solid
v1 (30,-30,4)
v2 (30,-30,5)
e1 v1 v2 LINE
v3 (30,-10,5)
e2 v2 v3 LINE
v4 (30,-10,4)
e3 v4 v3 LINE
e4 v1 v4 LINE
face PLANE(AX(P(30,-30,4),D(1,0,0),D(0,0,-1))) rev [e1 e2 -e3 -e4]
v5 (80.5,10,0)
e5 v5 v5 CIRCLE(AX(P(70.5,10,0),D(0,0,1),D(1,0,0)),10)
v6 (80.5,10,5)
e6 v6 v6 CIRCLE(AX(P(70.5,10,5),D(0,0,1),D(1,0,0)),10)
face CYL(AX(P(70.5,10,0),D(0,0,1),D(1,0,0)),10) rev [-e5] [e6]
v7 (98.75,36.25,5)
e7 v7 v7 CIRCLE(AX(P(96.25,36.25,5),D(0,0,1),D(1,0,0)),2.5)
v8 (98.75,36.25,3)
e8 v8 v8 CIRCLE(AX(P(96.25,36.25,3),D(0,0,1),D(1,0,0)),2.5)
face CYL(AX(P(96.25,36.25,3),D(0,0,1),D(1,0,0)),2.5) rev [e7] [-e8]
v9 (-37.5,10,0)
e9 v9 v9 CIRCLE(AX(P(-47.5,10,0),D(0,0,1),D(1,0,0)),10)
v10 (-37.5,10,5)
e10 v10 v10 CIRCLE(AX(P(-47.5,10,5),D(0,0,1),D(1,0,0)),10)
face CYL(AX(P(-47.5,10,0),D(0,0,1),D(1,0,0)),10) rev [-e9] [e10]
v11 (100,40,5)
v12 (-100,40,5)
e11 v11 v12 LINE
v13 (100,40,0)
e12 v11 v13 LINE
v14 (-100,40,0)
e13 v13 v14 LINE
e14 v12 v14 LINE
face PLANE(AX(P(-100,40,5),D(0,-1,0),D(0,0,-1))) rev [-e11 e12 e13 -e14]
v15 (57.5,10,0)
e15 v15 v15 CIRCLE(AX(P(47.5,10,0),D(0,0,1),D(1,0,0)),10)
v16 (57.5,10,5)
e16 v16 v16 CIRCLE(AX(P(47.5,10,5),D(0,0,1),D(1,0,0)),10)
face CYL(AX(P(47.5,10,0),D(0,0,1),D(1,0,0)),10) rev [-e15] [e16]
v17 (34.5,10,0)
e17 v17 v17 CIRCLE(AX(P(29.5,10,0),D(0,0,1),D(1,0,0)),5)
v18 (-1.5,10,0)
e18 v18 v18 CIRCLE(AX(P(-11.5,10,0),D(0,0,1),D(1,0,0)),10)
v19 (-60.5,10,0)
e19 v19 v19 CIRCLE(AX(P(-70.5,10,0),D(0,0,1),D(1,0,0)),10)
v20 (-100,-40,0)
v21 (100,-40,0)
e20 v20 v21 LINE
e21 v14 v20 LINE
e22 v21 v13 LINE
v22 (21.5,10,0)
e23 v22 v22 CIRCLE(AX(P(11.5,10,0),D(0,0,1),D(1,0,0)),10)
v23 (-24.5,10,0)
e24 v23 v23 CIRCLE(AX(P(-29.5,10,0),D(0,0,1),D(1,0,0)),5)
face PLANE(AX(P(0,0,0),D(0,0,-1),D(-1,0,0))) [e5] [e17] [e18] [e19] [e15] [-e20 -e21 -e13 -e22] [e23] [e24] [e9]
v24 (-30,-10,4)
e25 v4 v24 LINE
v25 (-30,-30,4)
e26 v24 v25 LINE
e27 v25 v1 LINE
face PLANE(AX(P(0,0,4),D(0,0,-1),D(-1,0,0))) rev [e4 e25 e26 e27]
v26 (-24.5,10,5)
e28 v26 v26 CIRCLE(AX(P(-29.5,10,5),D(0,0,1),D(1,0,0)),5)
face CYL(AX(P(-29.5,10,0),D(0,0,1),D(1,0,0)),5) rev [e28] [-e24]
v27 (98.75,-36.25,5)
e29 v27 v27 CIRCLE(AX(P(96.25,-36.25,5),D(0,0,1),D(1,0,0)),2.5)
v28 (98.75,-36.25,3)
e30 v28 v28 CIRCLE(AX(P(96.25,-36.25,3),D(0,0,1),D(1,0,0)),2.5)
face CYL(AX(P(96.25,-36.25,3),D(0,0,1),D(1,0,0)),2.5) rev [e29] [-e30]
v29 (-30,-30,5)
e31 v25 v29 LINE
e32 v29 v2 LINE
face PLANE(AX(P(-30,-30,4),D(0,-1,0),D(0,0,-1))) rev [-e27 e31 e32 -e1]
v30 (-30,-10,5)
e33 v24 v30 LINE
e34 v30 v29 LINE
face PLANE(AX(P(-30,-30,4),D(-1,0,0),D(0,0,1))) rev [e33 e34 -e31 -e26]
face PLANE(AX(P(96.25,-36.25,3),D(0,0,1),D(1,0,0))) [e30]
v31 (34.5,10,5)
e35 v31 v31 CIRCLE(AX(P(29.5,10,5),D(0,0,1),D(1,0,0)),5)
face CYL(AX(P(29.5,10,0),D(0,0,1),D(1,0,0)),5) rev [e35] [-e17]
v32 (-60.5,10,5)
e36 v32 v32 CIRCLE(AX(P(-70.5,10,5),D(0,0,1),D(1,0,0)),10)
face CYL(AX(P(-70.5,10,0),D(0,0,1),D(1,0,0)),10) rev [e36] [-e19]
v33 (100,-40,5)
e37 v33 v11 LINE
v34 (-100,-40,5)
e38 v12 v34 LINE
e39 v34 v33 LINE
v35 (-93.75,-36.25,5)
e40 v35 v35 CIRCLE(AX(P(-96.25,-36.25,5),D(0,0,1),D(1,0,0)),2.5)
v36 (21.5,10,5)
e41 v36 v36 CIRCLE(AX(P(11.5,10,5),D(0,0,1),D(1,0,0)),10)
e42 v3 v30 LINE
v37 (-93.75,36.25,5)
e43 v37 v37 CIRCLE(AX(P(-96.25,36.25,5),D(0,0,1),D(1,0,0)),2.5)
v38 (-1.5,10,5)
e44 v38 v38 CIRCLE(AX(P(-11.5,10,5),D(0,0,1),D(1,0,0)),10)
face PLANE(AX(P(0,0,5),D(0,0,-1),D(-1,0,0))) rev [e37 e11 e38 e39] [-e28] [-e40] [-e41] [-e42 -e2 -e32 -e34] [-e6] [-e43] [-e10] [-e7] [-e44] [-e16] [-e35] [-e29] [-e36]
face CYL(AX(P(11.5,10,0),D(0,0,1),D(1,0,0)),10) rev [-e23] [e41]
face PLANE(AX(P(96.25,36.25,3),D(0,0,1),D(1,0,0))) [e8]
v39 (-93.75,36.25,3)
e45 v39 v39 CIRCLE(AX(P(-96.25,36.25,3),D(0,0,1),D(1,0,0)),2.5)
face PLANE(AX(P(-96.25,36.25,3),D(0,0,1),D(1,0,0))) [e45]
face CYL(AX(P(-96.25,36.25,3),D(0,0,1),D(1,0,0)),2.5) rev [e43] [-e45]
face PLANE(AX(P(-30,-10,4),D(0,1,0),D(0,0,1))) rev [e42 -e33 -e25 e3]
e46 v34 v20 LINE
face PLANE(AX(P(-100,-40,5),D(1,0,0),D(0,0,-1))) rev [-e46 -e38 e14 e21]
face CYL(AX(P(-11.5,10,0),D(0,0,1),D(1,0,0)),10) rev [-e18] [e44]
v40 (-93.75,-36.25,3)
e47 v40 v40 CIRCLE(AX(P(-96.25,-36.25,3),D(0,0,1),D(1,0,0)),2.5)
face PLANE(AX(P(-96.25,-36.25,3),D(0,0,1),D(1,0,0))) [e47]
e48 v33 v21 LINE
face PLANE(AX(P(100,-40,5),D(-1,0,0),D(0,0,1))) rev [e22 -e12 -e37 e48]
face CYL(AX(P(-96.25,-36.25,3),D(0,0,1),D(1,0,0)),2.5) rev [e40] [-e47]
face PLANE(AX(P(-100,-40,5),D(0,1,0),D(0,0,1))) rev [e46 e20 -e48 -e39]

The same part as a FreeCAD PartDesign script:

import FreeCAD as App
import Part
import Sketcher

V = App.Vector
Q = App.Units.Quantity

doc = App.newDocument("Part")
body = doc.addObject("PartDesign::Body", "Body")

# Sketch on XY plane
sketch1 = body.newObject("Sketcher::SketchObject", "Sketch")
sketch1.AttachmentSupport = (doc.getObject("XY_Plane"), [""])
sketch1.MapMode = "FlatFace"
sketch1.addGeometry([
    Part.LineSegment(V(-100, 40, 0), V(-100, -40, 0)),
    Part.LineSegment(V(-100, -40, 0), V(100, -40, 0)),
    Part.LineSegment(V(100, -40, 0), V(100, 40, 0)),
    Part.LineSegment(V(100, 40, 0), V(-100, 40, 0)),
], False)
sketch1.addConstraint([
    Sketcher.Constraint("Coincident", 0, 2, 1, 1),
    Sketcher.Constraint("Coincident", 1, 2, 2, 1),
    Sketcher.Constraint("Coincident", 2, 2, 3, 1),
    Sketcher.Constraint("Coincident", 3, 2, 0, 1),
    Sketcher.Constraint("Vertical", 0),
    Sketcher.Constraint("Horizontal", 1),
    Sketcher.Constraint("Vertical", 2),
    Sketcher.Constraint("Horizontal", 3),
    Sketcher.Constraint("Symmetric", 0, 2, 2, 2, -1, 1),
    Sketcher.Constraint("DistanceX", 1, 1, 1, 2, Q("200 mm")),
    Sketcher.Constraint("DistanceY", 0, 2, 0, 1, Q("80 mm")),
])
pad1 = body.newObject("PartDesign::Pad", "Pad")
pad1.Profile = sketch1
pad1.Length = 5

# Sketch on XY plane
sketch2 = body.newObject("Sketcher::SketchObject", "Sketch001")
sketch2.AttachmentSupport = (doc.getObject("XY_Plane"), [""])
sketch2.MapMode = "FlatFace"
sketch2.AttachmentOffset = App.Placement(V(0, 0, 5), App.Rotation())
sketch2.addGeometry([
    Part.Circle(V(-96.2, 36.2, 0), V(0, 0, 1), 2.5),
    Part.Circle(V(96.2, 36.2, 0), V(0, 0, 1), 2.5),
    Part.Circle(V(96.2, -36.2, 0), V(0, 0, 1), 2.5),
    Part.Circle(V(-96.2, -36.2, 0), V(0, 0, 1), 2.5),
], False)
sketch2.addConstraint([
    Sketcher.Constraint("Equal", 0, 1),
    Sketcher.Constraint("Equal", 1, 2),
    Sketcher.Constraint("Equal", 2, 3),
    Sketcher.Constraint("Symmetric", 0, 3, 2, 3, -1, 1),
    Sketcher.Constraint("Symmetric", 1, 3, 3, 3, -1, 1),
    Sketcher.Constraint("Symmetric", 0, 3, 1, 3, -2),
    Sketcher.Constraint("Diameter", 0, Q("5 mm")),
    Sketcher.Constraint("DistanceX", 0, 3, 1, 3, Q("192.5 mm")),
    Sketcher.Constraint("DistanceY", 2, 3, 1, 3, Q("72.5 mm")),
])
pocket1 = body.newObject("PartDesign::Pocket", "Pocket")
pocket1.Profile = sketch2
pocket1.Length = 2

# Sketch on XY plane
sketch3 = body.newObject("Sketcher::SketchObject", "Sketch002")
sketch3.AttachmentSupport = (doc.getObject("XY_Plane"), [""])
sketch3.MapMode = "FlatFace"
sketch3.AttachmentOffset = App.Placement(V(0, 0, 5), App.Rotation())
sketch3.addGeometry([
    Part.LineSegment(V(-30, -10, 0), V(-30, -30, 0)),
    Part.LineSegment(V(-30, -30, 0), V(30, -30, 0)),
    Part.LineSegment(V(30, -30, 0), V(30, -10, 0)),
    Part.LineSegment(V(30, -10, 0), V(-30, -10, 0)),
], False)
sketch3.addConstraint([
    Sketcher.Constraint("Coincident", 0, 2, 1, 1),
    Sketcher.Constraint("Coincident", 1, 2, 2, 1),
    Sketcher.Constraint("Coincident", 2, 2, 3, 1),
    Sketcher.Constraint("Coincident", 3, 2, 0, 1),
    Sketcher.Constraint("Vertical", 0),
    Sketcher.Constraint("Horizontal", 1),
    Sketcher.Constraint("Vertical", 2),
    Sketcher.Constraint("Horizontal", 3),
    Sketcher.Constraint("DistanceX", 1, 1, 1, 2, Q("60 mm")),
    Sketcher.Constraint("DistanceY", 0, 2, 0, 1, Q("20 mm")),
    Sketcher.Constraint("DistanceX", 0, 2, -1, 1, Q("30 mm")),
    Sketcher.Constraint("DistanceY", 0, 2, -1, 1, Q("30 mm")),
])
pocket2 = body.newObject("PartDesign::Pocket", "Pocket001")
pocket2.Profile = sketch3
pocket2.Length = 1

# Sketch on XY plane
sketch4 = body.newObject("Sketcher::SketchObject", "Sketch003")
sketch4.AttachmentSupport = (doc.getObject("XY_Plane"), [""])
sketch4.MapMode = "FlatFace"
sketch4.AttachmentOffset = App.Placement(V(0, 0, 5), App.Rotation())
sketch4.addGeometry([
    Part.Circle(V(-70, 10, 0), V(0, 0, 1), 10),  # 0
    Part.Circle(V(-48, 10, 0), V(0, 0, 1), 10),  # 1
    Part.Circle(V(-30, 10, 0), V(0, 0, 1), 5),  # 2
    Part.Circle(V(-12, 10, 0), V(0, 0, 1), 10),  # 3
    Part.Circle(V(12, 10, 0), V(0, 0, 1), 10),  # 4
    Part.Circle(V(30, 10, 0), V(0, 0, 1), 5),  # 5
    Part.Circle(V(48, 10, 0), V(0, 0, 1), 10),  # 6
    Part.Circle(V(70, 10, 0), V(0, 0, 1), 10),  # 7
], False)
sketch4.addConstraint([
    Sketcher.Constraint("Equal", 0, 1),
    Sketcher.Constraint("Equal", 1, 3),
    Sketcher.Constraint("Equal", 3, 4),
    Sketcher.Constraint("Equal", 2, 5),
    Sketcher.Constraint("Equal", 4, 6),
    Sketcher.Constraint("Equal", 6, 7),
    Sketcher.Constraint("Symmetric", 3, 3, 4, 3, -2),
    Sketcher.Constraint("Symmetric", 2, 3, 5, 3, -2),
    Sketcher.Constraint("Symmetric", 1, 3, 6, 3, -2),
    Sketcher.Constraint("Symmetric", 0, 3, 7, 3, -2),
    Sketcher.Constraint("Horizontal", 0, 3, 1, 3),
    Sketcher.Constraint("Horizontal", 1, 3, 2, 3),
    Sketcher.Constraint("Horizontal", 2, 3, 3, 3),
    Sketcher.Constraint("Diameter", 0, Q("20 mm")),
    Sketcher.Constraint("Diameter", 2, Q("10 mm")),
    Sketcher.Constraint("DistanceY", -1, 1, 0, 3, Q("10 mm")),
    Sketcher.Constraint("DistanceX", 0, 3, 1, 3, Q("23 mm")),
    Sketcher.Constraint("DistanceX", 1, 3, 2, 3, Q("18 mm")),
    Sketcher.Constraint("DistanceX", 2, 3, 3, 3, Q("18 mm")),
    Sketcher.Constraint("DistanceX", 3, 3, 4, 3, Q("23 mm")),
])
pocket3 = body.newObject("PartDesign::Pocket", "Pocket002")
pocket3.Profile = sketch4
pocket3.Length = 5

doc.recompute()
